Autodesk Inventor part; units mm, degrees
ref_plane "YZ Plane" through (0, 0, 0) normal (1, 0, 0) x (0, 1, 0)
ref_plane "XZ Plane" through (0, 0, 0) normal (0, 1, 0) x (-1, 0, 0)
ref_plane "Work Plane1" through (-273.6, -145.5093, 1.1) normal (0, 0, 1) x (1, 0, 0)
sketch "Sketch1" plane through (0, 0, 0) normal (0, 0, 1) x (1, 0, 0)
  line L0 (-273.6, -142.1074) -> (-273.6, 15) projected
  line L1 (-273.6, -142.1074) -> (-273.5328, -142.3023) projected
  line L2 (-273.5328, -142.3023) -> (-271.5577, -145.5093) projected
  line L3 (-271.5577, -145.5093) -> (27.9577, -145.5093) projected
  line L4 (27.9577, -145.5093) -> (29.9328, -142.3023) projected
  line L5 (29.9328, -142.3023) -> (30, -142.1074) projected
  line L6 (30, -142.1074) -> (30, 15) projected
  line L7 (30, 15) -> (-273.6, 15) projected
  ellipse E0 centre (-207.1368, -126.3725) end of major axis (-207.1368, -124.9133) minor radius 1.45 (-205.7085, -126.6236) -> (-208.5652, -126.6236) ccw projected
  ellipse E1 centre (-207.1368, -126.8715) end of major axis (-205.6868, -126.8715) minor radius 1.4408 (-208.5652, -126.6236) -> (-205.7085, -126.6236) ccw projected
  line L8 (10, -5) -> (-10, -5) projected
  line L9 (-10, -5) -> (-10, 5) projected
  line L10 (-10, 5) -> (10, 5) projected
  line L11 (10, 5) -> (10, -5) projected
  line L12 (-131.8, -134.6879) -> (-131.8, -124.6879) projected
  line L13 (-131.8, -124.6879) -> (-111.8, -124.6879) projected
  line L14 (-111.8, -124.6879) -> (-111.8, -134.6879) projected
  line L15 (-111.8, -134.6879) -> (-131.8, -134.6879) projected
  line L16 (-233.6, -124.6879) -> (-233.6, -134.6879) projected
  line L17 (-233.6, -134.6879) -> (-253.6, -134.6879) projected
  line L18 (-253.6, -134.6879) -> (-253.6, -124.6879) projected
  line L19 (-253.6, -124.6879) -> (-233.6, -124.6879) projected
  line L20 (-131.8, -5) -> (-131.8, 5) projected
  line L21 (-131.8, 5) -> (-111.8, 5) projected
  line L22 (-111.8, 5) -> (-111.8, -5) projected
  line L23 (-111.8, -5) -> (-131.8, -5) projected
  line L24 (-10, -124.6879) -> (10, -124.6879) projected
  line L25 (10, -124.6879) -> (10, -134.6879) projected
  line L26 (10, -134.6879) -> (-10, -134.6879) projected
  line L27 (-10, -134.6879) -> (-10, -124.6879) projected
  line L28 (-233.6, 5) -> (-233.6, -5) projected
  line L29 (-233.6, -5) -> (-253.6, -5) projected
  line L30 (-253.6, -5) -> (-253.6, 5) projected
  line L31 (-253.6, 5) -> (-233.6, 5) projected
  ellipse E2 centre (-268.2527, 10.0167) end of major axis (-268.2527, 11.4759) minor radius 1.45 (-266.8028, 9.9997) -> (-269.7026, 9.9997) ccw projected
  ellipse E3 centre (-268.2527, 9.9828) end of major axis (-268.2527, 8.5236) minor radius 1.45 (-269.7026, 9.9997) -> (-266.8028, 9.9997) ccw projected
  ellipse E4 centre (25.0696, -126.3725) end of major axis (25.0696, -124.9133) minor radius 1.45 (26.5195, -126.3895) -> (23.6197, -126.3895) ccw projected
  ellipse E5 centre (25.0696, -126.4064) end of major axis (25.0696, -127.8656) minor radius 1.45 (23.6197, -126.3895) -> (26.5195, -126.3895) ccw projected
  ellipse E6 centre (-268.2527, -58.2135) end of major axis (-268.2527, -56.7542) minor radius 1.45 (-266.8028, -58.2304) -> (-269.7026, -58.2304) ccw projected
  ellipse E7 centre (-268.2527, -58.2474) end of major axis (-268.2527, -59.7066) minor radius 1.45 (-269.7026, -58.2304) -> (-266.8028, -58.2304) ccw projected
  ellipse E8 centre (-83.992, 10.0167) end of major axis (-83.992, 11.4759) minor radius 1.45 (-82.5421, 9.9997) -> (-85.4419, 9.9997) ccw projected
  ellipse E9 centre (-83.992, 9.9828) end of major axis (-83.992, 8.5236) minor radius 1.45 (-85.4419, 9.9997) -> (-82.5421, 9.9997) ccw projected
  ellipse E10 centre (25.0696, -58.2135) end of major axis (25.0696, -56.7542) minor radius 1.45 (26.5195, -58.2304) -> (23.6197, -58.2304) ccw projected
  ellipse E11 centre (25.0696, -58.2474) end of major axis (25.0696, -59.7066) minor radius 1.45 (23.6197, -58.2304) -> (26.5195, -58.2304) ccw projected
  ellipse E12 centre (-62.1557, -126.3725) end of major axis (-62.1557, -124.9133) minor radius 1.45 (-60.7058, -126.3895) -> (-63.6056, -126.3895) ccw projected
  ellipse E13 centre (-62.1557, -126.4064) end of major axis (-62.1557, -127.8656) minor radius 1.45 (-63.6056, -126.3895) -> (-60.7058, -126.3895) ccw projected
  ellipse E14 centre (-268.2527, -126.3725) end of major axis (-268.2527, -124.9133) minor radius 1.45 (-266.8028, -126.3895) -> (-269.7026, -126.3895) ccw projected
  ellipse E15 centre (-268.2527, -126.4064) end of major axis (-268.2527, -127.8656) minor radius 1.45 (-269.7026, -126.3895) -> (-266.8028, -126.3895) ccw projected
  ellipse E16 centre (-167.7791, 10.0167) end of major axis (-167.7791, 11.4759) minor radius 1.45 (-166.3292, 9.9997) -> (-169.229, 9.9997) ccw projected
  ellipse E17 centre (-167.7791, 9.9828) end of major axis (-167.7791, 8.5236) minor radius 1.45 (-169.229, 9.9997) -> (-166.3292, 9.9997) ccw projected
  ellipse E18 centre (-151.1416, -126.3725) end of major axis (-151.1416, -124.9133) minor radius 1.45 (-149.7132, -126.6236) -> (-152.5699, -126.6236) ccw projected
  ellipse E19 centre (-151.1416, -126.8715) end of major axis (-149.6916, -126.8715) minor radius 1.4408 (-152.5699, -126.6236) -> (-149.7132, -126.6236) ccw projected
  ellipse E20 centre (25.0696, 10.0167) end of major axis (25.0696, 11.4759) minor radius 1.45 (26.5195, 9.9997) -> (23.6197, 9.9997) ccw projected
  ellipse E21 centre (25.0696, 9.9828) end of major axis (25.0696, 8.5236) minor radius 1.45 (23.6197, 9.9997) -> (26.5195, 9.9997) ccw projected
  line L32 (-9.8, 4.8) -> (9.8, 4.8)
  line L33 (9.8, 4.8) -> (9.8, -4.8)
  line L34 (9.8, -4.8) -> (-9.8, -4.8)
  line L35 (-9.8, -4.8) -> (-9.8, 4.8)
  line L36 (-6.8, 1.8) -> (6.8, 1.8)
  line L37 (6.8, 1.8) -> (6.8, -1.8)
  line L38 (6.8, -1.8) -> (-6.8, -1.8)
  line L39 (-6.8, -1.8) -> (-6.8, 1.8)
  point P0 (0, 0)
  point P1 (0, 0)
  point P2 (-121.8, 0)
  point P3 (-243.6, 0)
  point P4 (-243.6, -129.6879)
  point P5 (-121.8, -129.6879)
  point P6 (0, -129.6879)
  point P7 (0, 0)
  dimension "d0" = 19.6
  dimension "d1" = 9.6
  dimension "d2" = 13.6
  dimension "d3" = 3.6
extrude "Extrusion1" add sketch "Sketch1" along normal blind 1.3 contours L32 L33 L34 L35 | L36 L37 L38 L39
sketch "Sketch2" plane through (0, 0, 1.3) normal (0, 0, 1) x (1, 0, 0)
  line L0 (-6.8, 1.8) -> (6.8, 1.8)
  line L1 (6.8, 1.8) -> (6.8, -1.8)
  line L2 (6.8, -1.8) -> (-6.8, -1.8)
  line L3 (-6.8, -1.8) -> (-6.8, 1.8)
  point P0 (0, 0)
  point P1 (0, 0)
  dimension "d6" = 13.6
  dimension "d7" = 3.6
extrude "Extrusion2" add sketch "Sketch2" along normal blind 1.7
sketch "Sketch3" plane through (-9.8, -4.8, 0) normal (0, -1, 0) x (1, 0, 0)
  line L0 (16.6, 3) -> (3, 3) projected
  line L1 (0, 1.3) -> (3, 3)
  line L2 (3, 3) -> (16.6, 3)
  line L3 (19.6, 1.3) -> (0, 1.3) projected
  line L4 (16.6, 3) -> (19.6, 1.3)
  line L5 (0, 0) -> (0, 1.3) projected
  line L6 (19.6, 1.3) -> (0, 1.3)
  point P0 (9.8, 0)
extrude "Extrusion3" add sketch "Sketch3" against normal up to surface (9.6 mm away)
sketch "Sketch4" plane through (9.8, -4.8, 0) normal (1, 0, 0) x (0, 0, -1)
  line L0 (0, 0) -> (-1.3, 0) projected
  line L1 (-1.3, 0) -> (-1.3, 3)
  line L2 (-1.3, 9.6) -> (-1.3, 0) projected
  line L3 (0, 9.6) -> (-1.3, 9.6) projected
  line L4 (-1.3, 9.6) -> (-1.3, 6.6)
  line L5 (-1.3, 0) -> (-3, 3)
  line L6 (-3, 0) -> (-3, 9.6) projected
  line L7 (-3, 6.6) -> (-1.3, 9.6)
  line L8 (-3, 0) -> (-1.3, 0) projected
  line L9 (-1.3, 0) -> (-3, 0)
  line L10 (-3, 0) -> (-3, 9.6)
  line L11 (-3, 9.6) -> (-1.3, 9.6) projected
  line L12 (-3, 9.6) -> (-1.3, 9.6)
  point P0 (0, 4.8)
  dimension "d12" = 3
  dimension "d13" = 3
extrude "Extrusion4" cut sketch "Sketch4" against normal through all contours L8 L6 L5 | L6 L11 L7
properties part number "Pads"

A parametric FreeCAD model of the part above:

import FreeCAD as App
import Part
import Sketcher

V = App.Vector


def add_polygon(sketch, points):
    """Adds a closed chain of lines whose ends are joined by coincident constraints."""
    first, n = sketch.GeometryCount, len(points)
    for a, b in zip(points, points[1:] + points[:1]):
        sketch.addGeometry(Part.LineSegment(App.Vector(*a, 0), App.Vector(*b, 0)), False)
    for i in range(n):
        sketch.addConstraint(Sketcher.Constraint("Coincident", first + i, 2, first + (i + 1) % n, 1))

doc = App.newDocument("Part")
body = doc.addObject("PartDesign::Body", "Body")

# Sketch on XY plane
sketch1 = body.newObject("Sketcher::SketchObject", "Sketch")
sketch1.AttachmentSupport = (doc.getObject("XY_Plane"), [""])
sketch1.MapMode = "FlatFace"
add_polygon(sketch1, [(10, 5), (-10, 5), (-10, -5), (10, -5)])  # lines 0-3
sketch1.addConstraint(Sketcher.Constraint("Horizontal", 0))
sketch1.addConstraint(Sketcher.Constraint("Vertical", 1))
sketch1.addConstraint(Sketcher.Constraint("Horizontal", 2))
sketch1.addConstraint(Sketcher.Constraint("Vertical", 3))
sketch1.addConstraint(Sketcher.Constraint("Symmetric", 0, 2, 2, 2, -1, 1))
sketch1.addConstraint(Sketcher.Constraint("DistanceX", 0, 2, 0, 1, 19.6))
sketch1.addConstraint(Sketcher.Constraint("DistanceY", 1, 2, 1, 1, 9.6))
pad1 = body.newObject("PartDesign::Pad", "Pad")
pad1.Profile = sketch1
pad1.Length = 1.3

# Sketch on XY plane
sketch2 = body.newObject("Sketcher::SketchObject", "Sketch001")
sketch2.AttachmentSupport = (doc.getObject("XY_Plane"), [""])
sketch2.MapMode = "FlatFace"
sketch2.AttachmentOffset = App.Placement(V(0, 0, 1.3), App.Rotation())
add_polygon(sketch2, [(6.8, 1.8), (-6.8, 1.8), (-6.8, -1.8), (6.8, -1.8)])  # lines 0-3
sketch2.addConstraint(Sketcher.Constraint("Horizontal", 0))
sketch2.addConstraint(Sketcher.Constraint("Vertical", 1))
sketch2.addConstraint(Sketcher.Constraint("Horizontal", 2))
sketch2.addConstraint(Sketcher.Constraint("Vertical", 3))
sketch2.addConstraint(Sketcher.Constraint("Symmetric", 0, 2, 2, 2, -1, 1))
sketch2.addConstraint(Sketcher.Constraint("DistanceX", 0, 2, 0, 1, 13.6))
sketch2.addConstraint(Sketcher.Constraint("DistanceY", 1, 2, 1, 1, 3.6))
pad2 = body.newObject("PartDesign::Pad", "Pad001")
pad2.Profile = sketch2
pad2.Length = 1.7

# Sketch on XZ plane
sketch3 = body.newObject("Sketcher::SketchObject", "Sketch002")
sketch3.AttachmentSupport = (doc.getObject("XZ_Plane"), [""])
sketch3.MapMode = "FlatFace"
sketch3.AttachmentOffset = App.Placement(V(0, 0, 4.8), App.Rotation())
add_polygon(sketch3, [(9.8, 1.3), (6.8, 3), (-6.8, 3), (-9.8, 1.3)])  # lines 0-3
sketch3.addConstraint(Sketcher.Constraint("Horizontal", 1))
sketch3.addConstraint(Sketcher.Constraint("Horizontal", 3))
sketch3.addConstraint(Sketcher.Constraint("Equal", 0, 2))
sketch3.addConstraint(Sketcher.Constraint("DistanceX", 1, 2, 1, 1, 13.6))
sketch3.addConstraint(Sketcher.Constraint("DistanceX", 3, 1, 3, 2, 19.6))
sketch3.addConstraint(Sketcher.Constraint("DistanceY", -1, 1, 0, 2, 3.0))
sketch3.addConstraint(Sketcher.Constraint("DistanceX", -1, 1, 0, 2, 6.8))
sketch3.addConstraint(Sketcher.Constraint("DistanceY", -1, 1, 2, 2, 1.3))
pad3 = body.newObject("PartDesign::Pad", "Pad002")
pad3.Profile = sketch3
pad3.Length = 9.6
pad3.Reversed = True

# Sketch on YZ plane
sketch4 = body.newObject("Sketcher::SketchObject", "Sketch003")
sketch4.AttachmentSupport = (doc.getObject("YZ_Plane"), [""])
sketch4.MapMode = "FlatFace"
sketch4.AttachmentOffset = App.Placement(V(0, 0, 9.8), App.Rotation())
add_polygon(sketch4, [(-4.8, 3), (-4.8, 1.3), (-1.8, 3)])  # lines 0-2
add_polygon(sketch4, [(4.8, 3), (1.8, 3), (4.8, 1.3)])  # lines 3-5
sketch4.addConstraint(Sketcher.Constraint("Vertical", 0))
sketch4.addConstraint(Sketcher.Constraint("Horizontal", 2))
sketch4.addConstraint(Sketcher.Constraint("Horizontal", 3))
sketch4.addConstraint(Sketcher.Constraint("Vertical", 5))
sketch4.addConstraint(Sketcher.Constraint("Symmetric", 1, 2, 3, 2, -2))
sketch4.addConstraint(Sketcher.Constraint("Symmetric", 0, 2, 4, 2, -2))
sketch4.addConstraint(Sketcher.Constraint("DistanceX", 2, 2, 2, 1, 3.0))
sketch4.addConstraint(Sketcher.Constraint("DistanceY", -1, 1, 1, 2, 3.0))
sketch4.addConstraint(Sketcher.Constraint("DistanceY", 0, 2, 0, 1, 1.7))
sketch4.addConstraint(Sketcher.Constraint("DistanceX", 0, 2, -1, 1, 4.8))
pocket1 = body.newObject("PartDesign::Pocket", "Pocket")
pocket1.Profile = sketch4
pocket1.Type = "ThroughAll"

doc.recompute()
